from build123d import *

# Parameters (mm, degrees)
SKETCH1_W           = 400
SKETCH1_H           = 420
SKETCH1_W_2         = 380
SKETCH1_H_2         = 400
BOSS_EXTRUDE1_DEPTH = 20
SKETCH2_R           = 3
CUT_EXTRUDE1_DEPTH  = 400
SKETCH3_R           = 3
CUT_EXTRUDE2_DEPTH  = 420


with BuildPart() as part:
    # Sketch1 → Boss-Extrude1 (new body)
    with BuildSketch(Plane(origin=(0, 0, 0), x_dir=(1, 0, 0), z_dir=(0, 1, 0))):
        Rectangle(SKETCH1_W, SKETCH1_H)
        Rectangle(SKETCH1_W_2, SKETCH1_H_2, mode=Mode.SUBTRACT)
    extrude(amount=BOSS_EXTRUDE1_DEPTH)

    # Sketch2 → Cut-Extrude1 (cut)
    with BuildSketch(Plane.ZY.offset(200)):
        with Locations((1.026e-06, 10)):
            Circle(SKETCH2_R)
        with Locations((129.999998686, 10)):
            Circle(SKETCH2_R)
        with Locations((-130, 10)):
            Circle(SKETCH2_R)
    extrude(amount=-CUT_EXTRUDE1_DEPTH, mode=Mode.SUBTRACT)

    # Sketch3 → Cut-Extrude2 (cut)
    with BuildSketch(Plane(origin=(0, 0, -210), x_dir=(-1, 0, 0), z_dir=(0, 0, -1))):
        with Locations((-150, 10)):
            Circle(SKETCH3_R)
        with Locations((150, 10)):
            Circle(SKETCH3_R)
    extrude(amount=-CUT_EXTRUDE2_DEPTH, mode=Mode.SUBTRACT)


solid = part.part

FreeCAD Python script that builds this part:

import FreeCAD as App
import Part
import Sketcher
Q = App.Units.Quantity


def add_polygon(sketch, points):
    """Adds a closed chain of lines whose ends are joined by coincident constraints."""
    first, n = sketch.GeometryCount, len(points)
    for a, b in zip(points, points[1:] + points[:1]):
        sketch.addGeometry(Part.LineSegment(App.Vector(*a, 0), App.Vector(*b, 0)), False)
    for i in range(n):
        sketch.addConstraint(Sketcher.Constraint("Coincident", first + i, 2, first + (i + 1) % n, 1))

doc = App.newDocument("Part")
params = doc.addObject("Spreadsheet::Sheet", "Params")
for row, (alias, value) in enumerate([
    ("sketch1_width", "400 mm"),
    ("sketch1_width2", "380 mm"),
    ("sketch1_height", "420 mm"),
    ("pad1_length", "20 mm"),
    ("sketch2_diameter", "6 mm"),
    ("pocket1_length", "400 mm"),
    ("sketch3_diameter", "6 mm"),
    ("pocket2_length", "420 mm"),
], start=1):
    params.set(f"A{row}", alias)
    params.set(f"B{row}", "=" + value)
    params.setAlias(f"B{row}", alias)

body = doc.addObject("PartDesign::Body", "Body")

sketch1 = body.newObject("Sketcher::SketchObject", "Sketch")
sketch1.AttachmentSupport = (doc.getObject("XZ_Plane"), [""])
sketch1.MapMode = "FlatFace"
add_polygon(sketch1, [(-200, -210), (-200, 210), (200, 210), (200, -210)])
add_polygon(sketch1, [(190, 200), (-190, 200), (-190, -200), (190, -200)])
sketch1.addConstraint(Sketcher.Constraint("Vertical", 0))
sketch1.addConstraint(Sketcher.Constraint("Horizontal", 1))
sketch1.addConstraint(Sketcher.Constraint("Vertical", 2))
sketch1.addConstraint(Sketcher.Constraint("Horizontal", 3))
sketch1.addConstraint(Sketcher.Constraint("Horizontal", 4))
sketch1.addConstraint(Sketcher.Constraint("Vertical", 5))
sketch1.addConstraint(Sketcher.Constraint("Horizontal", 6))
sketch1.addConstraint(Sketcher.Constraint("Vertical", 7))
sketch1.addConstraint(Sketcher.Constraint("Symmetric", 0, 2, 2, 2, -1, 1))
sketch1.addConstraint(Sketcher.Constraint("Symmetric", 4, 2, 6, 2, -1, 1))
sketch1.addConstraint(Sketcher.Constraint("Equal", 3, 5))
sketch1.addConstraint(Sketcher.Constraint("DistanceX", 1, 1, 1, 2, Q("400 mm")))
sketch1.addConstraint(Sketcher.Constraint("DistanceX", 4, 2, 4, 1, Q("380 mm")))
sketch1.addConstraint(Sketcher.Constraint("DistanceY", 0, 1, 0, 2, Q("420 mm")))
sketch1.setExpression("Constraints[19]", "Params.sketch1_width")
sketch1.setExpression("Constraints[20]", "Params.sketch1_width2")
sketch1.setExpression("Constraints[21]", "Params.sketch1_height")
pad1 = body.newObject("PartDesign::Pad", "Pad")
pad1.Profile = sketch1
pad1.setExpression("Length", "Params.pad1_length")
pad1.Reversed = True

sketch2 = body.newObject("Sketcher::SketchObject", "Sketch001")
sketch2.AttachmentSupport = (doc.getObject("YZ_Plane"), [""])
sketch2.MapMode = "FlatFace"
sketch2.AttachmentOffset = App.Placement(App.Vector(0, 0, -200), App.Rotation())
sketch2.addGeometry(Part.Circle(App.Vector(10, 0, 0), App.Vector(0, 0, 1), 3), False)
sketch2.addGeometry(Part.Circle(App.Vector(10, 130, 0), App.Vector(0, 0, 1), 3), False)
sketch2.addGeometry(Part.Circle(App.Vector(10, -130, 0), App.Vector(0, 0, 1), 3), False)
sketch2.addConstraint(Sketcher.Constraint("Equal", 0, 1))
sketch2.addConstraint(Sketcher.Constraint("Equal", 1, 2))
sketch2.addConstraint(Sketcher.Constraint("Symmetric", 1, 3, 2, 3, -1))
sketch2.addConstraint(Sketcher.Constraint("PointOnObject", 0, 3, -1))
sketch2.addConstraint(Sketcher.Constraint("Vertical", 0, 3, 1, 3))
sketch2.addConstraint(Sketcher.Constraint("Diameter", 0, Q("6 mm")))
sketch2.addConstraint(Sketcher.Constraint("DistanceX", -1, 1, 0, 3, Q("10 mm")))
sketch2.addConstraint(Sketcher.Constraint("DistanceY", -1, 1, 1, 3, Q("129.999999 mm")))
sketch2.setExpression("Constraints[5]", "Params.sketch2_diameter")
pocket1 = body.newObject("PartDesign::Pocket", "Pocket")
pocket1.Profile = sketch2
pocket1.setExpression("Length", "Params.pocket1_length")
pocket1.Reversed = True

sketch3 = body.newObject("Sketcher::SketchObject", "Sketch002")
sketch3.AttachmentSupport = (doc.getObject("XY_Plane"), [""])
sketch3.MapMode = "FlatFace"
sketch3.AttachmentOffset = App.Placement(App.Vector(0, 0, -210), App.Rotation())
sketch3.addGeometry(Part.Circle(App.Vector(150, 10, 0), App.Vector(0, 0, 1), 3), False)
sketch3.addGeometry(Part.Circle(App.Vector(-150, 10, 0), App.Vector(0, 0, 1), 3), False)
sketch3.addConstraint(Sketcher.Constraint("Equal", 0, 1))
sketch3.addConstraint(Sketcher.Constraint("Symmetric", 0, 3, 1, 3, -2))
sketch3.addConstraint(Sketcher.Constraint("Diameter", 0, Q("6 mm")))
sketch3.addConstraint(Sketcher.Constraint("DistanceX", -1, 1, 0, 3, Q("150 mm")))
sketch3.addConstraint(Sketcher.Constraint("DistanceY", -1, 1, 0, 3, Q("10 mm")))
sketch3.setExpression("Constraints[2]", "Params.sketch3_diameter")
pocket2 = body.newObject("PartDesign::Pocket", "Pocket001")
pocket2.Profile = sketch3
pocket2.setExpression("Length", "Params.pocket2_length")
pocket2.Reversed = True

doc.recompute()
